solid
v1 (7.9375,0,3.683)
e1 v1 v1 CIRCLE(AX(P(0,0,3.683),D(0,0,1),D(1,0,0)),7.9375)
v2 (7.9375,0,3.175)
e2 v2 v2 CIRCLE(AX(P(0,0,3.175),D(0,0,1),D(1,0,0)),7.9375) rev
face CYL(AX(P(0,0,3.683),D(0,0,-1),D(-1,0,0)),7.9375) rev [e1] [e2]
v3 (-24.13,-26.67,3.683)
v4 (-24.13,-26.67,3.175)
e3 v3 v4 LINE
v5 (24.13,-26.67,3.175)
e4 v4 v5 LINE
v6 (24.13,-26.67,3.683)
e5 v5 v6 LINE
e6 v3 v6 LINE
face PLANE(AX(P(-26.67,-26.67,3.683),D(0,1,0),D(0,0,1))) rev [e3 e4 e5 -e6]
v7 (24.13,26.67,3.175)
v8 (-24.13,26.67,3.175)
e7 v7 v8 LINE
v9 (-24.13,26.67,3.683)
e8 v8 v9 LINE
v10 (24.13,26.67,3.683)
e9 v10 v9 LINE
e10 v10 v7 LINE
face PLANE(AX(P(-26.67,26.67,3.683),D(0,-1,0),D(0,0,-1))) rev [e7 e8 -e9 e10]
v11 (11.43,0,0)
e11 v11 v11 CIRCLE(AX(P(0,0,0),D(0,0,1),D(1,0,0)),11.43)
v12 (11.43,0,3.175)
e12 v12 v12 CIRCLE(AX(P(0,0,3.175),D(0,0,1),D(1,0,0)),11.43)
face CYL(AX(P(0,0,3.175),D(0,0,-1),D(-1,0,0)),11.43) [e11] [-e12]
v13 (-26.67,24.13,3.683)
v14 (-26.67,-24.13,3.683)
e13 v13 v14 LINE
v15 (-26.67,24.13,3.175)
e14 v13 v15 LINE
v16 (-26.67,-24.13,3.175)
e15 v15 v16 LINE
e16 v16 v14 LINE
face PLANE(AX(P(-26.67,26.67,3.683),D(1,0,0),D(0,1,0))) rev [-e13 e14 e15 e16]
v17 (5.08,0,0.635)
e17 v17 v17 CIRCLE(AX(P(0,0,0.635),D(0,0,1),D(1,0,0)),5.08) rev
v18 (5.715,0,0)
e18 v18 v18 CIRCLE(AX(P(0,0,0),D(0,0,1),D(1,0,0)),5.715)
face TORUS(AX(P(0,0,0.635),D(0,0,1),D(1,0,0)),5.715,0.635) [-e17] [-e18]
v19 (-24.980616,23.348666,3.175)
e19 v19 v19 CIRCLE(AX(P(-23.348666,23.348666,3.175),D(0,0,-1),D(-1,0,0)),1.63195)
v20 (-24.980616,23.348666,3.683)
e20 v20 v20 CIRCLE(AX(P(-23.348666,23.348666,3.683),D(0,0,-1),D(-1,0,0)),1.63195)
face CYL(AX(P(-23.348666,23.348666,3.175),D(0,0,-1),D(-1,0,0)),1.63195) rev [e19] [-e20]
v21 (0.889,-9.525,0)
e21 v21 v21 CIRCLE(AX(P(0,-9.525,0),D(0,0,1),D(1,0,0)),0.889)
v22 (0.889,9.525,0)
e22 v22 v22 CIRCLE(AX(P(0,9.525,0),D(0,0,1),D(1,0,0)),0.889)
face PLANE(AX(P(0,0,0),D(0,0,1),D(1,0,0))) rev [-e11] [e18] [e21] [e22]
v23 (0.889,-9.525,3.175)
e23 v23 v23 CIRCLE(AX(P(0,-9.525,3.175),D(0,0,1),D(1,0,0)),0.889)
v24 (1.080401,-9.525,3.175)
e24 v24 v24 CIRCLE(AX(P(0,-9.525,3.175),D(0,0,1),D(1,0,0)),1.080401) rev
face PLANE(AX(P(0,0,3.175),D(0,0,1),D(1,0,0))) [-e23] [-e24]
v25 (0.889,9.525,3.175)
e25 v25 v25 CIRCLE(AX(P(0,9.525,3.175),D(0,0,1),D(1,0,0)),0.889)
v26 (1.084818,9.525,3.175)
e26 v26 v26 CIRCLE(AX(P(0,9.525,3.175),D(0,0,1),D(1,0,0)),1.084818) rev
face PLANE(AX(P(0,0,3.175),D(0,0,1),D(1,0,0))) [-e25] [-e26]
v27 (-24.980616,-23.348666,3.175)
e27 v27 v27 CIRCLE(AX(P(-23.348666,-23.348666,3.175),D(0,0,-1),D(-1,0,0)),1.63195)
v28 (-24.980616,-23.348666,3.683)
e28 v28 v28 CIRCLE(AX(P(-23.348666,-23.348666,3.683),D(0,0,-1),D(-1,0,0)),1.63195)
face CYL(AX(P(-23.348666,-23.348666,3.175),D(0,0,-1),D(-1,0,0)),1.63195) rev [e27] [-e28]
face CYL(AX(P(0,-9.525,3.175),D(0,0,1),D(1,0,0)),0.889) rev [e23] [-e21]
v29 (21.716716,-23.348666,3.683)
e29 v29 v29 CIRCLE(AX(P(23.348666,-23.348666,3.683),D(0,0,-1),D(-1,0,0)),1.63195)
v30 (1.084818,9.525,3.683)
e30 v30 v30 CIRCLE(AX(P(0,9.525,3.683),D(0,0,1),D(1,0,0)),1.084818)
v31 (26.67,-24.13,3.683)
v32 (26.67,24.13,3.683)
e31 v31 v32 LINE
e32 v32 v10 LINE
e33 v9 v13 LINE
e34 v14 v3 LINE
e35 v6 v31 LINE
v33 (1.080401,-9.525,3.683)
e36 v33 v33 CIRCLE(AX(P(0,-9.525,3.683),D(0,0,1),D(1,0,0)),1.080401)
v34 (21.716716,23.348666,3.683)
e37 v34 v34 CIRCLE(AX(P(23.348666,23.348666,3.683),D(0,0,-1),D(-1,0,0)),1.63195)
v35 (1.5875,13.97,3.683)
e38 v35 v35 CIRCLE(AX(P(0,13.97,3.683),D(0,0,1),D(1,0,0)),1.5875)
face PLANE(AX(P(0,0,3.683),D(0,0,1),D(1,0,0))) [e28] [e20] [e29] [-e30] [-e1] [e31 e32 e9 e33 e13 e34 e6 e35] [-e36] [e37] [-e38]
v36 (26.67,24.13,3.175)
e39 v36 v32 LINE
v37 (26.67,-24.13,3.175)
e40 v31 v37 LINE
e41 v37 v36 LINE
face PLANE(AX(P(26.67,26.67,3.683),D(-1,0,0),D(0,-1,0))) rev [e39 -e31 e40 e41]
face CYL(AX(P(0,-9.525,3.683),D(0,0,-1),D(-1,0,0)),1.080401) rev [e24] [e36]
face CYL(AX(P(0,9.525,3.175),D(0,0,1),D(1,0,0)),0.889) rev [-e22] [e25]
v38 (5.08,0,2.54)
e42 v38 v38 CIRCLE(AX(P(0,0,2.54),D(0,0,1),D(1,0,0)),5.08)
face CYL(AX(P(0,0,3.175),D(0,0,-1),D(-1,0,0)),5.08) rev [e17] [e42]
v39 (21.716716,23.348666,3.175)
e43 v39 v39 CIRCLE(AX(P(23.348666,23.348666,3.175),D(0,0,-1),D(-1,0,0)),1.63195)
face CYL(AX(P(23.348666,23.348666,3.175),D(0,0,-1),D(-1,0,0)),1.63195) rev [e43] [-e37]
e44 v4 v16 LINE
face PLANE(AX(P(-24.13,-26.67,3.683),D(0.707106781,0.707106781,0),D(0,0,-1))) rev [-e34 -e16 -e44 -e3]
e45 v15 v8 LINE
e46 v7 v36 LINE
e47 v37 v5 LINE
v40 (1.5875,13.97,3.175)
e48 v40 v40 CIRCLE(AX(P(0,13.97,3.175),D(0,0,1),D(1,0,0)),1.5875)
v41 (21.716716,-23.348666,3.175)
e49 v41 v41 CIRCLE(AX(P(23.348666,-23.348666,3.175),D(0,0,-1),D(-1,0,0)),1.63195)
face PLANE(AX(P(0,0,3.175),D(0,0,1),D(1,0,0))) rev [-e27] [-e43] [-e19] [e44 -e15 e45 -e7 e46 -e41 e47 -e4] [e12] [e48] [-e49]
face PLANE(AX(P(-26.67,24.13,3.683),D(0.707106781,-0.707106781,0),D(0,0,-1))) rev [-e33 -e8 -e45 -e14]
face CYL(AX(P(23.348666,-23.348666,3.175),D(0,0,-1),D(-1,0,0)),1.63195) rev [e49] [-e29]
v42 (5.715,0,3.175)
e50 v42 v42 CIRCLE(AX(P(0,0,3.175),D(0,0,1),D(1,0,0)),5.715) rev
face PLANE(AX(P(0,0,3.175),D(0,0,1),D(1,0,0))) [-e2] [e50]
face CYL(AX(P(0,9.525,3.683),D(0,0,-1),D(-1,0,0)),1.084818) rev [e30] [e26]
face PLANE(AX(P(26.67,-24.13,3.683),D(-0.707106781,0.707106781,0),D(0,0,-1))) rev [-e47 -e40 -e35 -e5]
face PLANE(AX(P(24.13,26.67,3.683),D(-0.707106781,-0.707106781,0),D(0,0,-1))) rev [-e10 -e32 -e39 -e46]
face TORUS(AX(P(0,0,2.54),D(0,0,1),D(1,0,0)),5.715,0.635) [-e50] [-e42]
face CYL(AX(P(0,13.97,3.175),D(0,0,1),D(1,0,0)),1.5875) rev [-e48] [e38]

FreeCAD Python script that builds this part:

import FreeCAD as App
import Part
import Sketcher
from FreeCAD import Vector
Q = App.Units.Quantity


def edges_at(feature, points):
    """Names of the edges that pass closest to the given points."""
    edges = feature.Shape.Edges
    near = lambda p: min(range(len(edges)), key=lambda i: edges[i].distToShape(Part.Vertex(*p))[0])
    return sorted({f"Edge{near(p) + 1}" for p in points})


def add_polygon(sketch, points):
    """Adds a closed chain of lines whose ends are joined by coincident constraints."""
    first, n = sketch.GeometryCount, len(points)
    for a, b in zip(points, points[1:] + points[:1]):
        sketch.addGeometry(Part.LineSegment(App.Vector(*a, 0), App.Vector(*b, 0)), False)
    for i in range(n):
        sketch.addConstraint(Sketcher.Constraint("Coincident", first + i, 2, first + (i + 1) % n, 1))

doc = App.newDocument("Part")
body = doc.addObject("PartDesign::Body", "Body")

# Sketch on XY plane
sketch1 = body.newObject("Sketcher::SketchObject", "Sketch")
sketch1.AttachmentSupport = (doc.getObject("XY_Plane"), [""])
sketch1.MapMode = "FlatFace"
sketch1.addGeometry(Part.Circle(Vector(0, 0, 0), Vector(0, 0, 1), 11), False)
sketch1.addGeometry(Part.Circle(Vector(0, 0, 0), Vector(0, 0, 1), 5), False)
sketch1.addConstraint(Sketcher.Constraint("Coincident", 0, 3, -1, 1))
sketch1.addConstraint(Sketcher.Constraint("Coincident", 1, 3, -1, 1))
sketch1.addConstraint(Sketcher.Constraint("Diameter", 0, Q("0.9 in")))
sketch1.addConstraint(Sketcher.Constraint("Diameter", 1, Q("0.4 in")))
pad1 = body.newObject("PartDesign::Pad", "Pad")
pad1.Profile = sketch1
pad1.Length = Q("0.125 in")
doc.recompute()

fillet = body.newObject("PartDesign::Fillet", "Fillet")
fillet.Base = (pad1, edges_at(pad1, [(-5.08, 0, 0), (-5.08, 0, 3.175)]))
fillet.Radius = Q("0.025 in")

# Sketch on XY plane
sketch2 = body.newObject("Sketcher::SketchObject", "Sketch001")
sketch2.AttachmentSupport = (doc.getObject("XY_Plane"), [""])
sketch2.MapMode = "FlatFace"
sketch2.AttachmentOffset = App.Placement(Vector(0, 0, 0.125 * 25.4), App.Rotation())
sketch2.addGeometry(Part.Circle(Vector(0, 9.5, 0), Vector(0, 0, 1), 0.9), False)
sketch2.addConstraint(Sketcher.Constraint("PointOnObject", 0, 3, -2))
sketch2.addConstraint(Sketcher.Constraint("Diameter", 0, Q("0.07 in")))
sketch2.addConstraint(Sketcher.Constraint("DistanceY", -1, 1, 0, 3, Q("0.375 in")))
doc.recompute()
hole = body.newObject("PartDesign::Hole", "Hole")
hole.Profile = sketch2
hole.ThreadType = "None"
hole.Diameter = Q("0.07 in")
hole.DepthType = "ThroughAll"
doc.recompute()

mirrored = body.newObject("PartDesign::Mirrored", "Mirrored")
mirrored.Originals = [hole]
mirrored.MirrorPlane = (doc.getObject("XZ_Plane"), [""])
body.Tip = mirrored

# Sketch on XY plane
sketch3 = body.newObject("Sketcher::SketchObject", "Sketch002")
sketch3.AttachmentSupport = (doc.getObject("XY_Plane"), [""])
sketch3.MapMode = "FlatFace"
sketch3.AttachmentOffset = App.Placement(Vector(0, 0, 0.125 * 25.4), App.Rotation())
add_polygon(sketch3, [(-26.7, 26.7), (-26.7, -26.7), (26.7, -26.7), (26.7, 26.7)])  # lines 0-3
sketch3.addGeometry(Part.Circle(Vector(0, -9.5, 0), Vector(0, 0, 1), 1.1), False)  # 4
sketch3.addGeometry(Part.Circle(Vector(0, 0, 0), Vector(0, 0, 1), 7.9), False)  # 5
sketch3.addGeometry(Part.Circle(Vector(0, 9.5, 0), Vector(0, 0, 1), 1.1), False)  # 6
sketch3.addConstraint(Sketcher.Constraint("Vertical", 0))
sketch3.addConstraint(Sketcher.Constraint("Horizontal", 1))
sketch3.addConstraint(Sketcher.Constraint("Vertical", 2))
sketch3.addConstraint(Sketcher.Constraint("Horizontal", 3))
sketch3.addConstraint(Sketcher.Constraint("Coincident", 5, 3, -1, 1))
sketch3.addConstraint(Sketcher.Constraint("Symmetric", 4, 3, 6, 3, -1, 1))
sketch3.addConstraint(Sketcher.Constraint("Symmetric", 0, 2, 2, 2, -1, 1))
sketch3.addConstraint(Sketcher.Constraint("PointOnObject", 4, 3, -2))
sketch3.addConstraint(Sketcher.Constraint("Equal", 3, 0))
sketch3.addConstraint(Sketcher.Constraint("Diameter", 5, Q("0.625 in")))
sketch3.addConstraint(Sketcher.Constraint("DistanceX", 1, 1, 1, 2, Q("2.1 in")))
sketch3.addConstraint(Sketcher.Constraint("Diameter", 4, 2.160802))
sketch3.addConstraint(Sketcher.Constraint("DistanceY", 4, 3, 6, 3, Q("0.75 in")))
sketch3.addConstraint(Sketcher.Constraint("Diameter", 6, 2.169636))
pad2 = body.newObject("PartDesign::Pad", "Pad001")
pad2.Profile = sketch3
pad2.Length = Q("0.02 in")

# Sketch on XY plane
sketch4 = body.newObject("Sketcher::SketchObject", "Sketch003")
sketch4.AttachmentSupport = (doc.getObject("XY_Plane"), [""])
sketch4.MapMode = "FlatFace"
sketch4.AttachmentOffset = App.Placement(Vector(0, 0, 0.125 * 25.4), App.Rotation())
sketch4.addGeometry(Part.Circle(Vector(23.3, -23.3, 0), Vector(0, 0, 1), 1.6), False)
sketch4.addConstraint(Sketcher.Constraint("Diameter", 0, Q("0.1285 in")))
sketch4.addConstraint(Sketcher.Constraint("DistanceX", -1, 1, 0, 3, 23.348666))
sketch4.addConstraint(Sketcher.Constraint("DistanceY", 0, 3, -1, 1, 23.348666))
doc.recompute()
hole2 = body.newObject("PartDesign::Hole", "Hole001")
hole2.Profile = sketch4
hole2.ThreadType = "None"
hole2.Diameter = Q("0.1285 in")
hole2.DepthType = "ThroughAll"
hole2.Reversed = True
doc.recompute()

polarpattern = body.newObject("PartDesign::PolarPattern", "PolarPattern")
polarpattern.Originals = [hole2]
polarpattern.Axis = (doc.getObject("Z_Axis"), [""])
polarpattern.Angle = 360
polarpattern.Occurrences = 4
body.Tip = polarpattern

# Sketch on XY plane
sketch5 = body.newObject("Sketcher::SketchObject", "Sketch004")
sketch5.AttachmentSupport = (doc.getObject("XY_Plane"), [""])
sketch5.MapMode = "FlatFace"
sketch5.AttachmentOffset = App.Placement(Vector(0, 0, 0.145 * 25.4), App.Rotation())
sketch5.addGeometry(Part.Circle(Vector(0, 14, 0), Vector(0, 0, 1), 1.6), False)
sketch5.addConstraint(Sketcher.Constraint("PointOnObject", 0, 3, -2))
sketch5.addConstraint(Sketcher.Constraint("Diameter", 0, Q("0.125 in")))
sketch5.addConstraint(Sketcher.Constraint("DistanceY", -1, 1, 0, 3, Q("0.55 in")))
pocket1 = body.newObject("PartDesign::Pocket", "Pocket")
pocket1.Profile = sketch5
pocket1.Length = Q("0.02 in")
doc.recompute()

chamfer = body.newObject("PartDesign::Chamfer", "Chamfer")
chamfer.Base = (pocket1, edges_at(pocket1, [
    (-26.67, 26.67, 3.429),
    (-26.67, -26.67, 3.429),
    (26.67, -26.67, 3.429),
    (26.67, 26.67, 3.429),
]))
chamfer.Size = Q("0.1 in")

doc.recompute()
